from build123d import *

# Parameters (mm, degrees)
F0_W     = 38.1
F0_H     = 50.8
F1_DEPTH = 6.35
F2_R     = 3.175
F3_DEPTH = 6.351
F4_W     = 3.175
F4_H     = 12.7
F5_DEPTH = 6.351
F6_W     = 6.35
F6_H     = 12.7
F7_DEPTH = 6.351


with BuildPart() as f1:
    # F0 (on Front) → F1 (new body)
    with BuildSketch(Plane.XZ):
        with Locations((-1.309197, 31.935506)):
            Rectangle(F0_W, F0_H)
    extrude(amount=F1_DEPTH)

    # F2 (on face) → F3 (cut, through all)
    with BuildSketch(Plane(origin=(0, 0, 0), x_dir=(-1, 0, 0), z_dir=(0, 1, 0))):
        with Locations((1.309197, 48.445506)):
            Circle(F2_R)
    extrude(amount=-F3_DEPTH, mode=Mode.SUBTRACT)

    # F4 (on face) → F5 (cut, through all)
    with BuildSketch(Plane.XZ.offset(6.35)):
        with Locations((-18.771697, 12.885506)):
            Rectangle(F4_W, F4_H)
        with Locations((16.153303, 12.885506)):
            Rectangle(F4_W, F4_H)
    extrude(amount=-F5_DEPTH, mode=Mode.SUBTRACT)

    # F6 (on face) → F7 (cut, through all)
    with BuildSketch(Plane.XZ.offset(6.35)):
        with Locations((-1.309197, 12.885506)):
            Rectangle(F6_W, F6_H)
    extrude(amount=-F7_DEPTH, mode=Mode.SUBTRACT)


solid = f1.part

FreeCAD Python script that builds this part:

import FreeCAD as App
import Part
import Sketcher

V = App.Vector
Q = App.Units.Quantity

doc = App.newDocument("Part")
body = doc.addObject("PartDesign::Body", "Body")

# Sketch on XZ plane
sketch1 = body.newObject("Sketcher::SketchObject", "Sketch")
sketch1.AttachmentSupport = (doc.getObject("XZ_Plane"), [""])
sketch1.MapMode = "FlatFace"
sketch1.addGeometry([
    Part.LineSegment(V(-20.359197, 57.335506, 0), V(-20.359197, 6.535506, 0)),
    Part.LineSegment(V(-20.359197, 6.535506, 0), V(17.740803, 6.535506, 0)),
    Part.LineSegment(V(17.740803, 6.535506, 0), V(17.740803, 57.335506, 0)),
    Part.LineSegment(V(17.740803, 57.335506, 0), V(-20.359197, 57.335506, 0)),
], False)
sketch1.addConstraint([
    Sketcher.Constraint("Coincident", 0, 2, 1, 1),
    Sketcher.Constraint("Coincident", 1, 2, 2, 1),
    Sketcher.Constraint("Coincident", 2, 2, 3, 1),
    Sketcher.Constraint("Coincident", 3, 2, 0, 1),
    Sketcher.Constraint("Vertical", 0),
    Sketcher.Constraint("Horizontal", 1),
    Sketcher.Constraint("Vertical", 2),
    Sketcher.Constraint("Horizontal", 3),
    Sketcher.Constraint("DistanceY", 0, 2, 0, 1, Q("2 in")),
    Sketcher.Constraint("DistanceX", 1, 1, 1, 2, Q("1.5 in")),
    Sketcher.Constraint("DistanceX", 0, 2, -1, 1, Q("20.359197 mm")),
    Sketcher.Constraint("DistanceY", -1, 1, 0, 2, Q("6.535506 mm")),
])
pad1 = body.newObject("PartDesign::Pad", "Pad")
pad1.Profile = sketch1
pad1.Length = Q("0.25 in")

# Sketch on XZ plane
sketch2 = body.newObject("Sketcher::SketchObject", "Sketch001")
sketch2.AttachmentSupport = (doc.getObject("XZ_Plane"), [""])
sketch2.MapMode = "FlatFace"
sketch2.addGeometry(Part.Circle(V(-1.309197, 48.445506, 0), V(0, 0, 1), 3.175), False)
sketch2.addConstraint([
    Sketcher.Constraint("Diameter", 0, Q("0.25 in")),
    Sketcher.Constraint("DistanceX", 0, 3, -1, 1, Q("1.309197 mm")),
    Sketcher.Constraint("DistanceY", -1, 1, 0, 3, Q("48.445506 mm")),
])
pocket1 = body.newObject("PartDesign::Pocket", "Pocket")
pocket1.Profile = sketch2
pocket1.Type = "ThroughAll"
pocket1.Reversed = True

# Sketch on XZ plane
sketch3 = body.newObject("Sketcher::SketchObject", "Sketch002")
sketch3.AttachmentSupport = (doc.getObject("XZ_Plane"), [""])
sketch3.MapMode = "FlatFace"
sketch3.AttachmentOffset = App.Placement(V(0, 0, 0.25 * 25.4), App.Rotation())
sketch3.addGeometry([
    Part.LineSegment(V(-20.359197, 19.235506, 0), V(-20.359197, 6.535506, 0)),  # 0
    Part.LineSegment(V(-20.359197, 6.535506, 0), V(-17.184197, 6.535506, 0)),  # 1
    Part.LineSegment(V(-17.184197, 6.535506, 0), V(-17.184197, 19.235506, 0)),  # 2
    Part.LineSegment(V(-17.184197, 19.235506, 0), V(-20.359197, 19.235506, 0)),  # 3
    Part.LineSegment(V(14.565803, 19.235506, 0), V(14.565803, 6.535506, 0)),  # 4
    Part.LineSegment(V(14.565803, 6.535506, 0), V(17.740803, 6.535506, 0)),  # 5
    Part.LineSegment(V(17.740803, 6.535506, 0), V(17.740803, 19.235506, 0)),  # 6
    Part.LineSegment(V(17.740803, 19.235506, 0), V(14.565803, 19.235506, 0)),  # 7
], False)
sketch3.addConstraint([
    Sketcher.Constraint("Coincident", 0, 2, 1, 1),
    Sketcher.Constraint("Coincident", 1, 2, 2, 1),
    Sketcher.Constraint("Coincident", 2, 2, 3, 1),
    Sketcher.Constraint("Coincident", 3, 2, 0, 1),
    Sketcher.Constraint("Coincident", 4, 2, 5, 1),
    Sketcher.Constraint("Coincident", 5, 2, 6, 1),
    Sketcher.Constraint("Coincident", 6, 2, 7, 1),
    Sketcher.Constraint("Coincident", 7, 2, 4, 1),
    Sketcher.Constraint("Vertical", 0),
    Sketcher.Constraint("Horizontal", 1),
    Sketcher.Constraint("Vertical", 2),
    Sketcher.Constraint("Horizontal", 3),
    Sketcher.Constraint("Vertical", 4),
    Sketcher.Constraint("Horizontal", 5),
    Sketcher.Constraint("Vertical", 6),
    Sketcher.Constraint("Horizontal", 7),
    Sketcher.Constraint("Horizontal", 1, 2, 4, 2),
    Sketcher.Constraint("Horizontal", 3, 2, 6, 2),
    Sketcher.Constraint("Equal", 3, 5),
    Sketcher.Constraint("DistanceY", 0, 2, 0, 1, Q("0.5 in")),
    Sketcher.Constraint("DistanceX", 0, 2, 5, 2, Q("1.5 in")),
    Sketcher.Constraint("DistanceX", 1, 1, 1, 2, Q("0.125 in")),
    Sketcher.Constraint("DistanceX", 0, 2, -1, 1, Q("20.359197 mm")),
    Sketcher.Constraint("DistanceY", -1, 1, 0, 2, Q("6.535506 mm")),
])
pocket2 = body.newObject("PartDesign::Pocket", "Pocket001")
pocket2.Profile = sketch3
pocket2.Type = "ThroughAll"

# Sketch on XZ plane
sketch4 = body.newObject("Sketcher::SketchObject", "Sketch003")
sketch4.AttachmentSupport = (doc.getObject("XZ_Plane"), [""])
sketch4.MapMode = "FlatFace"
sketch4.AttachmentOffset = App.Placement(V(0, 0, 0.25 * 25.4), App.Rotation())
sketch4.addGeometry([
    Part.LineSegment(V(-4.484197, 19.235506, 0), V(-4.484197, 6.535506, 0)),
    Part.LineSegment(V(-4.484197, 6.535506, 0), V(1.865803, 6.535506, 0)),
    Part.LineSegment(V(1.865803, 6.535506, 0), V(1.865803, 19.235506, 0)),
    Part.LineSegment(V(1.865803, 19.235506, 0), V(-4.484197, 19.235506, 0)),
], False)
sketch4.addConstraint([
    Sketcher.Constraint("Coincident", 0, 2, 1, 1),
    Sketcher.Constraint("Coincident", 1, 2, 2, 1),
    Sketcher.Constraint("Coincident", 2, 2, 3, 1),
    Sketcher.Constraint("Coincident", 3, 2, 0, 1),
    Sketcher.Constraint("Vertical", 0),
    Sketcher.Constraint("Horizontal", 1),
    Sketcher.Constraint("Vertical", 2),
    Sketcher.Constraint("Horizontal", 3),
    Sketcher.Constraint("DistanceY", 0, 2, 0, 1, Q("0.5 in")),
    Sketcher.Constraint("DistanceX", 1, 1, 1, 2, Q("0.25 in")),
    Sketcher.Constraint("DistanceX", 0, 2, -1, 1, Q("4.484197 mm")),
    Sketcher.Constraint("DistanceY", -1, 1, 0, 2, Q("6.535506 mm")),
])
pocket3 = body.newObject("PartDesign::Pocket", "Pocket002")
pocket3.Profile = sketch4
pocket3.Type = "ThroughAll"

doc.recompute()
